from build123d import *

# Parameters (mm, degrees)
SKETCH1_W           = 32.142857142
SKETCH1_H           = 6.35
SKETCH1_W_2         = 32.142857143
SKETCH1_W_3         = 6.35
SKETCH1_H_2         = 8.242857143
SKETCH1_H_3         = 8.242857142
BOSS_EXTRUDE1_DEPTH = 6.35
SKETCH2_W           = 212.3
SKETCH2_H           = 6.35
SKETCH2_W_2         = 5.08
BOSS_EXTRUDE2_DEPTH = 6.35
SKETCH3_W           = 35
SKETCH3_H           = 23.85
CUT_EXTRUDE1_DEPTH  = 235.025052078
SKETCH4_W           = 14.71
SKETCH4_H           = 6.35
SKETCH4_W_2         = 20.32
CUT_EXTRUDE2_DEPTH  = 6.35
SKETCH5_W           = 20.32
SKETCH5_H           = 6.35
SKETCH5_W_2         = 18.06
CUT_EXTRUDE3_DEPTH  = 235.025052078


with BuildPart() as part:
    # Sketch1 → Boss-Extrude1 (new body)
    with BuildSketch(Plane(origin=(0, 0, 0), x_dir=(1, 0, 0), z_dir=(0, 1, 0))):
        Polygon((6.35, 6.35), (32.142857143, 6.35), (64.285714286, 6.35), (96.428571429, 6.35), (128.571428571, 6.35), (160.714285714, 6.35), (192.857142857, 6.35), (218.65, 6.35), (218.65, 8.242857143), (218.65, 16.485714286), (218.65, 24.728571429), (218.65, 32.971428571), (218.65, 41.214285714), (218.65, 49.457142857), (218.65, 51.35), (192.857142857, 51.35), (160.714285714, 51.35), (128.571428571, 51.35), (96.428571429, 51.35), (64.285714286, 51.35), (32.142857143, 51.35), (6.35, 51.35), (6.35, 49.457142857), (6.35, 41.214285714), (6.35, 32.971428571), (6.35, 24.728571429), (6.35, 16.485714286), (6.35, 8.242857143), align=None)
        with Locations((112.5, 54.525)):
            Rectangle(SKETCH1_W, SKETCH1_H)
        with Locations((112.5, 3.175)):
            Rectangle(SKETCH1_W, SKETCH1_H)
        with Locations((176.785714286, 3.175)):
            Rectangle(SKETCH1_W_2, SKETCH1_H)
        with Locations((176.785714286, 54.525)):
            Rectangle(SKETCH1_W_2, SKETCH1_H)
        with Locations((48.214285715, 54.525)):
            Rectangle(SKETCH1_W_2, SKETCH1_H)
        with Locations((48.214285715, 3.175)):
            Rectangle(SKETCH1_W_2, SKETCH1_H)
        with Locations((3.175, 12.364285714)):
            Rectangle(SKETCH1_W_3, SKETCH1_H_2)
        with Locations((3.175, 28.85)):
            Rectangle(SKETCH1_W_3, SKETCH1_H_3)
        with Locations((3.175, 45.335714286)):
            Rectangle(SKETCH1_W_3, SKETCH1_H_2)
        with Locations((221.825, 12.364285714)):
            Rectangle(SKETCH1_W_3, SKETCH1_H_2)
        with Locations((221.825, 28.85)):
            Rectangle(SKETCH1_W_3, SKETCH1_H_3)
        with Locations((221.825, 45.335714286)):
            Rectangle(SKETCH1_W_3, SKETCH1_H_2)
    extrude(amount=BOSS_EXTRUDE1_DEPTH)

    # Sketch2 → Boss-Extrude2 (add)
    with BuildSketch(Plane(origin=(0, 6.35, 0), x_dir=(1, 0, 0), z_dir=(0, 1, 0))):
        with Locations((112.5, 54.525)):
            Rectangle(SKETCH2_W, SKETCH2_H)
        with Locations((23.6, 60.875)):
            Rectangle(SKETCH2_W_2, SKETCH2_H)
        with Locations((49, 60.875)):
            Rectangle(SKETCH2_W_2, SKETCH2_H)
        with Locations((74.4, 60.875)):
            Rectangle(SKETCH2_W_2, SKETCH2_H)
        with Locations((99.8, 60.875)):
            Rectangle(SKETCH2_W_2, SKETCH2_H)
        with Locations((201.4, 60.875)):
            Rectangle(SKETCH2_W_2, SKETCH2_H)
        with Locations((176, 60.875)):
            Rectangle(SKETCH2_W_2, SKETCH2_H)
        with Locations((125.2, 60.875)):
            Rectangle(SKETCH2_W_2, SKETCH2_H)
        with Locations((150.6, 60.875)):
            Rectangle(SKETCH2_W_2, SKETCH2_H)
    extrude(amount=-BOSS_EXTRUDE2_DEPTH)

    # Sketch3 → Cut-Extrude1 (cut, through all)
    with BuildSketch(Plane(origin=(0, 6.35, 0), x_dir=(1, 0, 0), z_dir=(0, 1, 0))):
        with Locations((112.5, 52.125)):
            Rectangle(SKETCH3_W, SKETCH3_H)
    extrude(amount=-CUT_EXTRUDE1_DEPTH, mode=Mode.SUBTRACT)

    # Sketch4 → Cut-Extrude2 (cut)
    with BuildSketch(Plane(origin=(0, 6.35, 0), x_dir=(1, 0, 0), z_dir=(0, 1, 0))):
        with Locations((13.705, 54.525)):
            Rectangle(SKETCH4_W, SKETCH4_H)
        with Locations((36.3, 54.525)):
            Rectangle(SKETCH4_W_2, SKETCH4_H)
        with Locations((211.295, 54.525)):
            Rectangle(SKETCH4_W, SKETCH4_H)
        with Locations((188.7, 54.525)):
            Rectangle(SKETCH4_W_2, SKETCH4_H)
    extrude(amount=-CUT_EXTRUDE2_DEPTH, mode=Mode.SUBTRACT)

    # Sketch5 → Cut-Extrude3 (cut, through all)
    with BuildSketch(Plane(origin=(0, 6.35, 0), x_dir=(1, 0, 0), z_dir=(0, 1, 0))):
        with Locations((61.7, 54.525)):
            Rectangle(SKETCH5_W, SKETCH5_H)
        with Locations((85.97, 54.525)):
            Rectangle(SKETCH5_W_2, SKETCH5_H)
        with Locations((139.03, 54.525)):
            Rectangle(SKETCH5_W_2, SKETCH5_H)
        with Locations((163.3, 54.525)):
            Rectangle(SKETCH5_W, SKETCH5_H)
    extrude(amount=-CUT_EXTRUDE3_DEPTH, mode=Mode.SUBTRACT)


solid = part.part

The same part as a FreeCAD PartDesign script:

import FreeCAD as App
import Part
import Sketcher
from FreeCAD import Vector
Q = App.Units.Quantity

doc = App.newDocument("Part")
body = doc.addObject("PartDesign::Body", "Body")

sketch1 = doc.addObject("Sketcher::SketchObject", "Sketch")
body.addObject(sketch1)
sketch1.AttachmentSupport = (doc.XZ_Plane, [""])
sketch1.MapMode = "FlatFace"
sketch1.addGeometry([
    Part.LineSegment(Vector(6.3, -6.3, 0), Vector(32.1, -6.3, 0)),
    Part.LineSegment(Vector(32.1, -6.3, 0), Vector(32.1, 0, 0)),
    Part.LineSegment(Vector(32.1, 0, 0), Vector(64.3, 0, 0)),
    Part.LineSegment(Vector(64.3, 0, 0), Vector(64.3, -6.3, 0)),
    Part.LineSegment(Vector(64.3, -6.3, 0), Vector(96.4, -6.3, 0)),
    Part.LineSegment(Vector(96.4, -6.3, 0), Vector(96.4, 0, 0)),
    Part.LineSegment(Vector(96.4, 0, 0), Vector(128.6, 0, 0)),
    Part.LineSegment(Vector(128.6, 0, 0), Vector(128.6, -6.3, 0)),
    Part.LineSegment(Vector(128.6, -6.3, 0), Vector(160.7, -6.3, 0)),
    Part.LineSegment(Vector(160.7, -6.3, 0), Vector(160.7, 0, 0)),
    Part.LineSegment(Vector(160.7, 0, 0), Vector(192.9, 0, 0)),
    Part.LineSegment(Vector(192.9, 0, 0), Vector(192.9, -6.3, 0)),
    Part.LineSegment(Vector(192.9, -6.3, 0), Vector(218.7, -6.3, 0)),
    Part.LineSegment(Vector(218.7, -6.3, 0), Vector(218.7, -8.2, 0)),
    Part.LineSegment(Vector(218.7, -8.2, 0), Vector(225, -8.2, 0)),
    Part.LineSegment(Vector(225, -8.2, 0), Vector(225, -16.5, 0)),
    Part.LineSegment(Vector(225, -16.5, 0), Vector(218.7, -16.5, 0)),
    Part.LineSegment(Vector(218.7, -16.5, 0), Vector(218.7, -24.7, 0)),
    Part.LineSegment(Vector(218.7, -24.7, 0), Vector(225, -24.7, 0)),
    Part.LineSegment(Vector(225, -24.7, 0), Vector(225, -33, 0)),
    Part.LineSegment(Vector(225, -33, 0), Vector(218.7, -33, 0)),
    Part.LineSegment(Vector(218.7, -33, 0), Vector(218.7, -41.2, 0)),
    Part.LineSegment(Vector(218.7, -41.2, 0), Vector(225, -41.2, 0)),
    Part.LineSegment(Vector(225, -41.2, 0), Vector(225, -49.5, 0)),
    Part.LineSegment(Vector(225, -49.5, 0), Vector(218.7, -49.5, 0)),
    Part.LineSegment(Vector(218.7, -49.5, 0), Vector(218.7, -51.4, 0)),
    Part.LineSegment(Vector(218.7, -51.4, 0), Vector(192.9, -51.4, 0)),
    Part.LineSegment(Vector(192.9, -51.4, 0), Vector(192.9, -57.7, 0)),
    Part.LineSegment(Vector(192.9, -57.7, 0), Vector(160.7, -57.7, 0)),
    Part.LineSegment(Vector(160.7, -57.7, 0), Vector(160.7, -51.4, 0)),
    Part.LineSegment(Vector(160.7, -51.4, 0), Vector(128.6, -51.4, 0)),
    Part.LineSegment(Vector(128.6, -51.4, 0), Vector(128.6, -57.7, 0)),
    Part.LineSegment(Vector(128.6, -57.7, 0), Vector(96.4, -57.7, 0)),
    Part.LineSegment(Vector(96.4, -57.7, 0), Vector(96.4, -51.4, 0)),
    Part.LineSegment(Vector(96.4, -51.4, 0), Vector(64.3, -51.4, 0)),
    Part.LineSegment(Vector(64.3, -51.4, 0), Vector(64.3, -57.7, 0)),
    Part.LineSegment(Vector(64.3, -57.7, 0), Vector(32.1, -57.7, 0)),
    Part.LineSegment(Vector(32.1, -57.7, 0), Vector(32.1, -51.4, 0)),
    Part.LineSegment(Vector(32.1, -51.4, 0), Vector(6.3, -51.4, 0)),
    Part.LineSegment(Vector(6.3, -51.4, 0), Vector(6.3, -49.5, 0)),
    Part.LineSegment(Vector(6.3, -49.5, 0), Vector(0, -49.5, 0)),
    Part.LineSegment(Vector(0, -49.5, 0), Vector(0, -41.2, 0)),
    Part.LineSegment(Vector(0, -41.2, 0), Vector(6.3, -41.2, 0)),
    Part.LineSegment(Vector(6.3, -41.2, 0), Vector(6.3, -33, 0)),
    Part.LineSegment(Vector(6.3, -33, 0), Vector(0, -33, 0)),
    Part.LineSegment(Vector(0, -33, 0), Vector(0, -24.7, 0)),
    Part.LineSegment(Vector(0, -24.7, 0), Vector(6.3, -24.7, 0)),
    Part.LineSegment(Vector(6.3, -24.7, 0), Vector(6.3, -16.5, 0)),
    Part.LineSegment(Vector(6.3, -16.5, 0), Vector(0, -16.5, 0)),
    Part.LineSegment(Vector(0, -16.5, 0), Vector(0, -8.2, 0)),
    Part.LineSegment(Vector(0, -8.2, 0), Vector(6.3, -8.2, 0)),
    Part.LineSegment(Vector(6.3, -8.2, 0), Vector(6.3, -6.3, 0)),
], False)
sketch1.addConstraint([
    Sketcher.Constraint("Coincident", 0, 2, 1, 1),
    Sketcher.Constraint("Coincident", 1, 2, 2, 1),
    Sketcher.Constraint("Coincident", 2, 2, 3, 1),
    Sketcher.Constraint("Coincident", 3, 2, 4, 1),
    Sketcher.Constraint("Coincident", 4, 2, 5, 1),
    Sketcher.Constraint("Coincident", 5, 2, 6, 1),
    Sketcher.Constraint("Coincident", 6, 2, 7, 1),
    Sketcher.Constraint("Coincident", 7, 2, 8, 1),
    Sketcher.Constraint("Coincident", 8, 2, 9, 1),
    Sketcher.Constraint("Coincident", 9, 2, 10, 1),
    Sketcher.Constraint("Coincident", 10, 2, 11, 1),
    Sketcher.Constraint("Coincident", 11, 2, 12, 1),
    Sketcher.Constraint("Coincident", 12, 2, 13, 1),
    Sketcher.Constraint("Coincident", 13, 2, 14, 1),
    Sketcher.Constraint("Coincident", 14, 2, 15, 1),
    Sketcher.Constraint("Coincident", 15, 2, 16, 1),
    Sketcher.Constraint("Coincident", 16, 2, 17, 1),
    Sketcher.Constraint("Coincident", 17, 2, 18, 1),
    Sketcher.Constraint("Coincident", 18, 2, 19, 1),
    Sketcher.Constraint("Coincident", 19, 2, 20, 1),
    Sketcher.Constraint("Coincident", 20, 2, 21, 1),
    Sketcher.Constraint("Coincident", 21, 2, 22, 1),
    Sketcher.Constraint("Coincident", 22, 2, 23, 1),
    Sketcher.Constraint("Coincident", 23, 2, 24, 1),
    Sketcher.Constraint("Coincident", 24, 2, 25, 1),
    Sketcher.Constraint("Coincident", 25, 2, 26, 1),
    Sketcher.Constraint("Coincident", 26, 2, 27, 1),
    Sketcher.Constraint("Coincident", 27, 2, 28, 1),
    Sketcher.Constraint("Coincident", 28, 2, 29, 1),
    Sketcher.Constraint("Coincident", 29, 2, 30, 1),
    Sketcher.Constraint("Coincident", 30, 2, 31, 1),
    Sketcher.Constraint("Coincident", 31, 2, 32, 1),
    Sketcher.Constraint("Coincident", 32, 2, 33, 1),
    Sketcher.Constraint("Coincident", 33, 2, 34, 1),
    Sketcher.Constraint("Coincident", 34, 2, 35, 1),
    Sketcher.Constraint("Coincident", 35, 2, 36, 1),
    Sketcher.Constraint("Coincident", 36, 2, 37, 1),
    Sketcher.Constraint("Coincident", 37, 2, 38, 1),
    Sketcher.Constraint("Coincident", 38, 2, 39, 1),
    Sketcher.Constraint("Coincident", 39, 2, 40, 1),
    Sketcher.Constraint("Coincident", 40, 2, 41, 1),
    Sketcher.Constraint("Coincident", 41, 2, 42, 1),
    Sketcher.Constraint("Coincident", 42, 2, 43, 1),
    Sketcher.Constraint("Coincident", 43, 2, 44, 1),
    Sketcher.Constraint("Coincident", 44, 2, 45, 1),
    Sketcher.Constraint("Coincident", 45, 2, 46, 1),
    Sketcher.Constraint("Coincident", 46, 2, 47, 1),
    Sketcher.Constraint("Coincident", 47, 2, 48, 1),
    Sketcher.Constraint("Coincident", 48, 2, 49, 1),
    Sketcher.Constraint("Coincident", 49, 2, 50, 1),
    Sketcher.Constraint("Coincident", 50, 2, 51, 1),
    Sketcher.Constraint("Coincident", 51, 2, 0, 1),
    Sketcher.Constraint("Horizontal", 0),
    Sketcher.Constraint("Vertical", 1),
    Sketcher.Constraint("Horizontal", 2),
    Sketcher.Constraint("Vertical", 3),
    Sketcher.Constraint("Horizontal", 4),
    Sketcher.Constraint("Vertical", 5),
    Sketcher.Constraint("Horizontal", 6),
    Sketcher.Constraint("Vertical", 7),
    Sketcher.Constraint("Horizontal", 8),
    Sketcher.Constraint("Vertical", 9),
    Sketcher.Constraint("Horizontal", 10),
    Sketcher.Constraint("Vertical", 11),
    Sketcher.Constraint("Horizontal", 12),
    Sketcher.Constraint("Vertical", 13),
    Sketcher.Constraint("Horizontal", 14),
    Sketcher.Constraint("Vertical", 15),
    Sketcher.Constraint("Horizontal", 16),
    Sketcher.Constraint("Vertical", 17),
    Sketcher.Constraint("Horizontal", 18),
    Sketcher.Constraint("Vertical", 19),
    Sketcher.Constraint("Horizontal", 20),
    Sketcher.Constraint("Vertical", 21),
    Sketcher.Constraint("Horizontal", 22),
    Sketcher.Constraint("Vertical", 23),
    Sketcher.Constraint("Horizontal", 24),
    Sketcher.Constraint("Vertical", 25),
    Sketcher.Constraint("Horizontal", 26),
    Sketcher.Constraint("Vertical", 27),
    Sketcher.Constraint("Horizontal", 28),
    Sketcher.Constraint("Vertical", 29),
    Sketcher.Constraint("Horizontal", 30),
    Sketcher.Constraint("Vertical", 31),
    Sketcher.Constraint("Horizontal", 32),
    Sketcher.Constraint("Vertical", 33),
    Sketcher.Constraint("Horizontal", 34),
    Sketcher.Constraint("Vertical", 35),
    Sketcher.Constraint("Horizontal", 36),
    Sketcher.Constraint("Vertical", 37),
    Sketcher.Constraint("Horizontal", 38),
    Sketcher.Constraint("Vertical", 39),
    Sketcher.Constraint("Horizontal", 40),
    Sketcher.Constraint("Vertical", 41),
    Sketcher.Constraint("Horizontal", 42),
    Sketcher.Constraint("Vertical", 43),
    Sketcher.Constraint("Horizontal", 44),
    Sketcher.Constraint("Vertical", 45),
    Sketcher.Constraint("Horizontal", 46),
    Sketcher.Constraint("Vertical", 47),
    Sketcher.Constraint("Horizontal", 48),
    Sketcher.Constraint("Vertical", 49),
    Sketcher.Constraint("Horizontal", 50),
    Sketcher.Constraint("Vertical", 51),
    Sketcher.Constraint("PointOnObject", 1, 2, -1),
    Sketcher.Constraint("PointOnObject", 5, 2, -1),
    Sketcher.Constraint("PointOnObject", 9, 2, -1),
    Sketcher.Constraint("PointOnObject", 40, 2, -2),
    Sketcher.Constraint("PointOnObject", 44, 2, -2),
    Sketcher.Constraint("PointOnObject", 48, 2, -2),
    Sketcher.Constraint("Horizontal", 0, 2, 3, 2),
    Sketcher.Constraint("Horizontal", 4, 2, 7, 2),
    Sketcher.Constraint("Horizontal", 8, 2, 11, 2),
    Sketcher.Constraint("Horizontal", 26, 2, 29, 2),
    Sketcher.Constraint("Horizontal", 28, 2, 31, 2),
    Sketcher.Constraint("Horizontal", 30, 2, 33, 2),
    Sketcher.Constraint("Horizontal", 32, 2, 35, 2),
    Sketcher.Constraint("Horizontal", 34, 2, 37, 2),
    Sketcher.Constraint("Horizontal", 24, 2, 39, 2),
    Sketcher.Constraint("Horizontal", 22, 2, 41, 2),
    Sketcher.Constraint("Horizontal", 20, 2, 43, 2),
    Sketcher.Constraint("Horizontal", 18, 2, 45, 2),
    Sketcher.Constraint("Horizontal", 16, 2, 47, 2),
    Sketcher.Constraint("Horizontal", 14, 2, 49, 2),
    Sketcher.Constraint("Vertical", 13, 2, 16, 2),
    Sketcher.Constraint("Vertical", 15, 2, 18, 2),
    Sketcher.Constraint("Vertical", 17, 2, 20, 2),
    Sketcher.Constraint("Vertical", 19, 2, 22, 2),
    Sketcher.Constraint("Vertical", 21, 2, 24, 2),
    Sketcher.Constraint("Vertical", 11, 2, 26, 2),
    Sketcher.Constraint("Vertical", 9, 2, 28, 2),
    Sketcher.Constraint("Vertical", 7, 2, 30, 2),
    Sketcher.Constraint("Vertical", 5, 2, 32, 2),
    Sketcher.Constraint("Vertical", 3, 2, 34, 2),
    Sketcher.Constraint("Vertical", 1, 2, 36, 2),
    Sketcher.Constraint("Vertical", 39, 2, 42, 2),
    Sketcher.Constraint("Vertical", 43, 2, 46, 2),
    Sketcher.Constraint("Vertical", 47, 2, 50, 2),
    Sketcher.Constraint("Equal", 2, 4),
    Sketcher.Constraint("Equal", 4, 6),
    Sketcher.Constraint("Equal", 6, 8),
    Sketcher.Constraint("Equal", 8, 10),
    Sketcher.Constraint("Equal", 0, 12),
    Sketcher.Constraint("Equal", 24, 40),
    Sketcher.Constraint("Equal", 50, 1),
    Sketcher.Constraint("Equal", 15, 17),
    Sketcher.Constraint("Equal", 17, 19),
    Sketcher.Constraint("Equal", 19, 21),
    Sketcher.Constraint("Equal", 21, 23),
    Sketcher.Constraint("Equal", 13, 25),
    Sketcher.Constraint("Equal", 11, 27),
    Sketcher.Constraint("DistanceX", 14, 1, 14, 2, Q("0.25 in")),
    Sketcher.Constraint("DistanceX", -1, 1, 12, 2, Q("218.65 mm")),
    Sketcher.Constraint("DistanceY", 25, 2, -1, 1, Q("51.35 mm")),
    Sketcher.Constraint("DistanceX", 0, 1, 0, 2, Q("25.792857 mm")),
    Sketcher.Constraint("DistanceY", 13, 2, 13, 1, Q("1.892857 mm")),
])
pad1 = doc.addObject("PartDesign::Pad", "Pad")
body.addObject(pad1)
pad1.Profile = sketch1
pad1.Length = Q("0.25 in")
pad1.Reversed = True

sketch2 = doc.addObject("Sketcher::SketchObject", "Sketch001")
body.addObject(sketch2)
sketch2.AttachmentSupport = (doc.XZ_Plane, [""])
sketch2.MapMode = "FlatFace"
sketch2.AttachmentOffset = App.Placement(Vector(0, 0, -0.25 * 25.4), App.Rotation())
sketch2.addGeometry([
    Part.LineSegment(Vector(6, -58, 0), Vector(6, -51, 0)),
    Part.LineSegment(Vector(6, -51, 0), Vector(219, -51, 0)),
    Part.LineSegment(Vector(219, -51, 0), Vector(219, -58, 0)),
    Part.LineSegment(Vector(219, -58, 0), Vector(204, -58, 0)),
    Part.LineSegment(Vector(204, -58, 0), Vector(204, -64, 0)),
    Part.LineSegment(Vector(204, -64, 0), Vector(199, -64, 0)),
    Part.LineSegment(Vector(199, -64, 0), Vector(199, -58, 0)),
    Part.LineSegment(Vector(199, -58, 0), Vector(179, -58, 0)),
    Part.LineSegment(Vector(179, -58, 0), Vector(179, -64, 0)),
    Part.LineSegment(Vector(179, -64, 0), Vector(173, -64, 0)),
    Part.LineSegment(Vector(173, -64, 0), Vector(173, -58, 0)),
    Part.LineSegment(Vector(173, -58, 0), Vector(153, -58, 0)),
    Part.LineSegment(Vector(153, -58, 0), Vector(153, -64, 0)),
    Part.LineSegment(Vector(153, -64, 0), Vector(148, -64, 0)),
    Part.LineSegment(Vector(148, -64, 0), Vector(148, -58, 0)),
    Part.LineSegment(Vector(148, -58, 0), Vector(128, -58, 0)),
    Part.LineSegment(Vector(128, -58, 0), Vector(128, -64, 0)),
    Part.LineSegment(Vector(128, -64, 0), Vector(123, -64, 0)),
    Part.LineSegment(Vector(123, -64, 0), Vector(123, -58, 0)),
    Part.LineSegment(Vector(123, -58, 0), Vector(102, -58, 0)),
    Part.LineSegment(Vector(102, -58, 0), Vector(102, -64, 0)),
    Part.LineSegment(Vector(102, -64, 0), Vector(97, -64, 0)),
    Part.LineSegment(Vector(97, -64, 0), Vector(97, -58, 0)),
    Part.LineSegment(Vector(97, -58, 0), Vector(77, -58, 0)),
    Part.LineSegment(Vector(77, -58, 0), Vector(77, -64, 0)),
    Part.LineSegment(Vector(77, -64, 0), Vector(72, -64, 0)),
    Part.LineSegment(Vector(72, -64, 0), Vector(72, -58, 0)),
    Part.LineSegment(Vector(72, -58, 0), Vector(52, -58, 0)),
    Part.LineSegment(Vector(52, -58, 0), Vector(52, -64, 0)),
    Part.LineSegment(Vector(52, -64, 0), Vector(46, -64, 0)),
    Part.LineSegment(Vector(46, -64, 0), Vector(46, -58, 0)),
    Part.LineSegment(Vector(46, -58, 0), Vector(26, -58, 0)),
    Part.LineSegment(Vector(26, -58, 0), Vector(26, -64, 0)),
    Part.LineSegment(Vector(26, -64, 0), Vector(21, -64, 0)),
    Part.LineSegment(Vector(21, -64, 0), Vector(21, -58, 0)),
    Part.LineSegment(Vector(21, -58, 0), Vector(6, -58, 0)),
], False)
sketch2.addConstraint([
    Sketcher.Constraint("Coincident", 0, 2, 1, 1),
    Sketcher.Constraint("Coincident", 1, 2, 2, 1),
    Sketcher.Constraint("Coincident", 2, 2, 3, 1),
    Sketcher.Constraint("Coincident", 3, 2, 4, 1),
    Sketcher.Constraint("Coincident", 4, 2, 5, 1),
    Sketcher.Constraint("Coincident", 5, 2, 6, 1),
    Sketcher.Constraint("Coincident", 6, 2, 7, 1),
    Sketcher.Constraint("Coincident", 7, 2, 8, 1),
    Sketcher.Constraint("Coincident", 8, 2, 9, 1),
    Sketcher.Constraint("Coincident", 9, 2, 10, 1),
    Sketcher.Constraint("Coincident", 10, 2, 11, 1),
    Sketcher.Constraint("Coincident", 11, 2, 12, 1),
    Sketcher.Constraint("Coincident", 12, 2, 13, 1),
    Sketcher.Constraint("Coincident", 13, 2, 14, 1),
    Sketcher.Constraint("Coincident", 14, 2, 15, 1),
    Sketcher.Constraint("Coincident", 15, 2, 16, 1),
    Sketcher.Constraint("Coincident", 16, 2, 17, 1),
    Sketcher.Constraint("Coincident", 17, 2, 18, 1),
    Sketcher.Constraint("Coincident", 18, 2, 19, 1),
    Sketcher.Constraint("Coincident", 19, 2, 20, 1),
    Sketcher.Constraint("Coincident", 20, 2, 21, 1),
    Sketcher.Constraint("Coincident", 21, 2, 22, 1),
    Sketcher.Constraint("Coincident", 22, 2, 23, 1),
    Sketcher.Constraint("Coincident", 23, 2, 24, 1),
    Sketcher.Constraint("Coincident", 24, 2, 25, 1),
    Sketcher.Constraint("Coincident", 25, 2, 26, 1),
    Sketcher.Constraint("Coincident", 26, 2, 27, 1),
    Sketcher.Constraint("Coincident", 27, 2, 28, 1),
    Sketcher.Constraint("Coincident", 28, 2, 29, 1),
    Sketcher.Constraint("Coincident", 29, 2, 30, 1),
    Sketcher.Constraint("Coincident", 30, 2, 31, 1),
    Sketcher.Constraint("Coincident", 31, 2, 32, 1),
    Sketcher.Constraint("Coincident", 32, 2, 33, 1),
    Sketcher.Constraint("Coincident", 33, 2, 34, 1),
    Sketcher.Constraint("Coincident", 34, 2, 35, 1),
    Sketcher.Constraint("Coincident", 35, 2, 0, 1),
    Sketcher.Constraint("Vertical", 0),
    Sketcher.Constraint("Horizontal", 1),
    Sketcher.Constraint("Vertical", 2),
    Sketcher.Constraint("Horizontal", 3),
    Sketcher.Constraint("Vertical", 4),
    Sketcher.Constraint("Horizontal", 5),
    Sketcher.Constraint("Vertical", 6),
    Sketcher.Constraint("Horizontal", 7),
    Sketcher.Constraint("Vertical", 8),
    Sketcher.Constraint("Horizontal", 9),
    Sketcher.Constraint("Vertical", 10),
    Sketcher.Constraint("Horizontal", 11),
    Sketcher.Constraint("Vertical", 12),
    Sketcher.Constraint("Horizontal", 13),
    Sketcher.Constraint("Vertical", 14),
    Sketcher.Constraint("Horizontal", 15),
    Sketcher.Constraint("Vertical", 16),
    Sketcher.Constraint("Horizontal", 17),
    Sketcher.Constraint("Vertical", 18),
    Sketcher.Constraint("Horizontal", 19),
    Sketcher.Constraint("Vertical", 20),
    Sketcher.Constraint("Horizontal", 21),
    Sketcher.Constraint("Vertical", 22),
    Sketcher.Constraint("Horizontal", 23),
    Sketcher.Constraint("Vertical", 24),
    Sketcher.Constraint("Horizontal", 25),
    Sketcher.Constraint("Vertical", 26),
    Sketcher.Constraint("Horizontal", 27),
    Sketcher.Constraint("Vertical", 28),
    Sketcher.Constraint("Horizontal", 29),
    Sketcher.Constraint("Vertical", 30),
    Sketcher.Constraint("Horizontal", 31),
    Sketcher.Constraint("Vertical", 32),
    Sketcher.Constraint("Horizontal", 33),
    Sketcher.Constraint("Vertical", 34),
    Sketcher.Constraint("Horizontal", 35),
    Sketcher.Constraint("Horizontal", 3, 2, 6, 2),
    Sketcher.Constraint("Horizontal", 5, 2, 8, 2),
    Sketcher.Constraint("Horizontal", 7, 2, 10, 2),
    Sketcher.Constraint("Horizontal", 9, 2, 12, 2),
    Sketcher.Constraint("Horizontal", 11, 2, 14, 2),
    Sketcher.Constraint("Horizontal", 13, 2, 16, 2),
    Sketcher.Constraint("Horizontal", 15, 2, 18, 2),
    Sketcher.Constraint("Horizontal", 17, 2, 20, 2),
    Sketcher.Constraint("Horizontal", 19, 2, 22, 2),
    Sketcher.Constraint("Horizontal", 21, 2, 24, 2),
    Sketcher.Constraint("Horizontal", 23, 2, 26, 2),
    Sketcher.Constraint("Horizontal", 25, 2, 28, 2),
    Sketcher.Constraint("Horizontal", 27, 2, 30, 2),
    Sketcher.Constraint("Horizontal", 29, 2, 32, 2),
    Sketcher.Constraint("Horizontal", 31, 2, 34, 2),
    Sketcher.Constraint("Equal", 5, 9),
    Sketcher.Constraint("Equal", 7, 11),
    Sketcher.Constraint("Equal", 9, 13),
    Sketcher.Constraint("Equal", 11, 15),
    Sketcher.Constraint("Equal", 13, 17),
    Sketcher.Constraint("Equal", 15, 19),
    Sketcher.Constraint("Equal", 17, 21),
    Sketcher.Constraint("Equal", 19, 23),
    Sketcher.Constraint("Equal", 21, 25),
    Sketcher.Constraint("Equal", 23, 27),
    Sketcher.Constraint("Equal", 25, 29),
    Sketcher.Constraint("Equal", 27, 31),
    Sketcher.Constraint("Equal", 29, 33),
    Sketcher.Constraint("Equal", 3, 35),
    Sketcher.Constraint("Equal", 2, 4),
    Sketcher.Constraint("DistanceX", 5, 2, 5, 1, Q("0.2 in")),
    Sketcher.Constraint("DistanceX", 7, 2, 7, 1, Q("0.8 in")),
    Sketcher.Constraint("DistanceY", 0, 1, 0, 2, Q("0.25 in")),
    Sketcher.Constraint("DistanceX", -1, 1, 0, 2, Q("0.25 in")),
    Sketcher.Constraint("DistanceX", 1, 1, 1, 2, Q("212.3 mm")),
    Sketcher.Constraint("DistanceY", 0, 2, -1, 1, Q("51.35 mm")),
])
pad2 = doc.addObject("PartDesign::Pad", "Pad001")
body.addObject(pad2)
pad2.Profile = sketch2
pad2.Length = Q("0.25 in")

sketch3 = doc.addObject("Sketcher::SketchObject", "Sketch002")
body.addObject(sketch3)
sketch3.AttachmentSupport = (doc.XZ_Plane, [""])
sketch3.MapMode = "FlatFace"
sketch3.AttachmentOffset = App.Placement(Vector(0, 0, -0.25 * 25.4), App.Rotation())
sketch3.addGeometry([
    Part.LineSegment(Vector(95, -64, 0), Vector(95, -40, 0)),
    Part.LineSegment(Vector(95, -40, 0), Vector(130, -40, 0)),
    Part.LineSegment(Vector(130, -40, 0), Vector(130, -64, 0)),
    Part.LineSegment(Vector(130, -64, 0), Vector(95, -64, 0)),
], False)
sketch3.addConstraint([
    Sketcher.Constraint("Coincident", 0, 2, 1, 1),
    Sketcher.Constraint("Coincident", 1, 2, 2, 1),
    Sketcher.Constraint("Coincident", 2, 2, 3, 1),
    Sketcher.Constraint("Coincident", 3, 2, 0, 1),
    Sketcher.Constraint("Vertical", 0),
    Sketcher.Constraint("Horizontal", 1),
    Sketcher.Constraint("Vertical", 2),
    Sketcher.Constraint("Horizontal", 3),
    Sketcher.Constraint("DistanceX", 1, 1, 1, 2, Q("35 mm")),
    Sketcher.Constraint("DistanceY", 0, 1, 0, 2, Q("23.85 mm")),
    Sketcher.Constraint("DistanceX", -1, 1, 0, 2, Q("95 mm")),
    Sketcher.Constraint("DistanceY", 0, 2, -1, 1, Q("40.2 mm")),
])
pocket1 = doc.addObject("PartDesign::Pocket", "Pocket")
body.addObject(pocket1)
pocket1.Profile = sketch3
pocket1.Type = "ThroughAll"
pocket1.Reversed = True

sketch4 = doc.addObject("Sketcher::SketchObject", "Sketch003")
body.addObject(sketch4)
sketch4.AttachmentSupport = (doc.XZ_Plane, [""])
sketch4.MapMode = "FlatFace"
sketch4.AttachmentOffset = App.Placement(Vector(0, 0, -0.25 * 25.4), App.Rotation())
sketch4.addGeometry([
    Part.LineSegment(Vector(6, -58, 0), Vector(6, -51, 0)),
    Part.LineSegment(Vector(6, -51, 0), Vector(21, -51, 0)),
    Part.LineSegment(Vector(21, -51, 0), Vector(21, -58, 0)),
    Part.LineSegment(Vector(21, -58, 0), Vector(6, -58, 0)),
    Part.LineSegment(Vector(26, -58, 0), Vector(26, -51, 0)),
    Part.LineSegment(Vector(26, -51, 0), Vector(46, -51, 0)),
    Part.LineSegment(Vector(46, -51, 0), Vector(46, -58, 0)),
    Part.LineSegment(Vector(46, -58, 0), Vector(26, -58, 0)),
    Part.LineSegment(Vector(204, -58, 0), Vector(204, -51, 0)),
    Part.LineSegment(Vector(204, -51, 0), Vector(219, -51, 0)),
    Part.LineSegment(Vector(219, -51, 0), Vector(219, -58, 0)),
    Part.LineSegment(Vector(219, -58, 0), Vector(204, -58, 0)),
    Part.LineSegment(Vector(179, -58, 0), Vector(179, -51, 0)),
    Part.LineSegment(Vector(179, -51, 0), Vector(199, -51, 0)),
    Part.LineSegment(Vector(199, -51, 0), Vector(199, -58, 0)),
    Part.LineSegment(Vector(199, -58, 0), Vector(179, -58, 0)),
], False)
sketch4.addConstraint([
    Sketcher.Constraint("Coincident", 0, 2, 1, 1),
    Sketcher.Constraint("Coincident", 1, 2, 2, 1),
    Sketcher.Constraint("Coincident", 2, 2, 3, 1),
    Sketcher.Constraint("Coincident", 3, 2, 0, 1),
    Sketcher.Constraint("Coincident", 4, 2, 5, 1),
    Sketcher.Constraint("Coincident", 5, 2, 6, 1),
    Sketcher.Constraint("Coincident", 6, 2, 7, 1),
    Sketcher.Constraint("Coincident", 7, 2, 4, 1),
    Sketcher.Constraint("Coincident", 8, 2, 9, 1),
    Sketcher.Constraint("Coincident", 9, 2, 10, 1),
    Sketcher.Constraint("Coincident", 10, 2, 11, 1),
    Sketcher.Constraint("Coincident", 11, 2, 8, 1),
    Sketcher.Constraint("Coincident", 12, 2, 13, 1),
    Sketcher.Constraint("Coincident", 13, 2, 14, 1),
    Sketcher.Constraint("Coincident", 14, 2, 15, 1),
    Sketcher.Constraint("Coincident", 15, 2, 12, 1),
    Sketcher.Constraint("Vertical", 0),
    Sketcher.Constraint("Horizontal", 1),
    Sketcher.Constraint("Vertical", 2),
    Sketcher.Constraint("Horizontal", 3),
    Sketcher.Constraint("Vertical", 4),
    Sketcher.Constraint("Horizontal", 5),
    Sketcher.Constraint("Vertical", 6),
    Sketcher.Constraint("Horizontal", 7),
    Sketcher.Constraint("Vertical", 8),
    Sketcher.Constraint("Horizontal", 9),
    Sketcher.Constraint("Vertical", 10),
    Sketcher.Constraint("Horizontal", 11),
    Sketcher.Constraint("Vertical", 12),
    Sketcher.Constraint("Horizontal", 13),
    Sketcher.Constraint("Vertical", 14),
    Sketcher.Constraint("Horizontal", 15),
    Sketcher.Constraint("Horizontal", 1, 2, 4, 2),
    Sketcher.Constraint("Horizontal", 3, 2, 6, 2),
    Sketcher.Constraint("Horizontal", 5, 2, 8, 2),
    Sketcher.Constraint("Horizontal", 7, 2, 10, 2),
    Sketcher.Constraint("Horizontal", 9, 2, 12, 2),
    Sketcher.Constraint("Horizontal", 11, 2, 14, 2),
    Sketcher.Constraint("Equal", 3, 9),
    Sketcher.Constraint("Equal", 7, 13),
    Sketcher.Constraint("DistanceX", 5, 1, 5, 2, Q("0.8 in")),
    Sketcher.Constraint("DistanceX", 1, 2, 5, 2, Q("1 in")),
    Sketcher.Constraint("DistanceX", 4, 2, 8, 2, Q("7 in")),
    Sketcher.Constraint("DistanceX", 12, 2, 8, 2, Q("1 in")),
    Sketcher.Constraint("DistanceY", 0, 1, 0, 2, Q("0.25 in")),
    Sketcher.Constraint("DistanceX", -1, 1, 0, 2, Q("0.25 in")),
    Sketcher.Constraint("DistanceX", 1, 1, 1, 2, Q("14.71 mm")),
    Sketcher.Constraint("DistanceY", 0, 2, -1, 1, Q("51.35 mm")),
])
pocket2 = doc.addObject("PartDesign::Pocket", "Pocket001")
body.addObject(pocket2)
pocket2.Profile = sketch4
pocket2.Length = Q("0.25 in")
pocket2.Reversed = True

sketch5 = doc.addObject("Sketcher::SketchObject", "Sketch004")
body.addObject(sketch5)
sketch5.AttachmentSupport = (doc.XZ_Plane, [""])
sketch5.MapMode = "FlatFace"
sketch5.AttachmentOffset = App.Placement(Vector(0, 0, -0.25 * 25.4), App.Rotation())
sketch5.addGeometry([
    Part.LineSegment(Vector(52, -58, 0), Vector(52, -51, 0)),
    Part.LineSegment(Vector(52, -51, 0), Vector(72, -51, 0)),
    Part.LineSegment(Vector(72, -51, 0), Vector(72, -58, 0)),
    Part.LineSegment(Vector(72, -58, 0), Vector(52, -58, 0)),
    Part.LineSegment(Vector(77, -58, 0), Vector(77, -51, 0)),
    Part.LineSegment(Vector(77, -51, 0), Vector(95, -51, 0)),
    Part.LineSegment(Vector(95, -51, 0), Vector(95, -58, 0)),
    Part.LineSegment(Vector(95, -58, 0), Vector(77, -58, 0)),
    Part.LineSegment(Vector(130, -58, 0), Vector(130, -51, 0)),
    Part.LineSegment(Vector(130, -51, 0), Vector(148, -51, 0)),
    Part.LineSegment(Vector(148, -51, 0), Vector(148, -58, 0)),
    Part.LineSegment(Vector(148, -58, 0), Vector(130, -58, 0)),
    Part.LineSegment(Vector(153, -58, 0), Vector(153, -51, 0)),
    Part.LineSegment(Vector(153, -51, 0), Vector(173, -51, 0)),
    Part.LineSegment(Vector(173, -51, 0), Vector(173, -58, 0)),
    Part.LineSegment(Vector(173, -58, 0), Vector(153, -58, 0)),
], False)
sketch5.addConstraint([
    Sketcher.Constraint("Coincident", 0, 2, 1, 1),
    Sketcher.Constraint("Coincident", 1, 2, 2, 1),
    Sketcher.Constraint("Coincident", 2, 2, 3, 1),
    Sketcher.Constraint("Coincident", 3, 2, 0, 1),
    Sketcher.Constraint("Coincident", 4, 2, 5, 1),
    Sketcher.Constraint("Coincident", 5, 2, 6, 1),
    Sketcher.Constraint("Coincident", 6, 2, 7, 1),
    Sketcher.Constraint("Coincident", 7, 2, 4, 1),
    Sketcher.Constraint("Coincident", 8, 2, 9, 1),
    Sketcher.Constraint("Coincident", 9, 2, 10, 1),
    Sketcher.Constraint("Coincident", 10, 2, 11, 1),
    Sketcher.Constraint("Coincident", 11, 2, 8, 1),
    Sketcher.Constraint("Coincident", 12, 2, 13, 1),
    Sketcher.Constraint("Coincident", 13, 2, 14, 1),
    Sketcher.Constraint("Coincident", 14, 2, 15, 1),
    Sketcher.Constraint("Coincident", 15, 2, 12, 1),
    Sketcher.Constraint("Vertical", 0),
    Sketcher.Constraint("Horizontal", 1),
    Sketcher.Constraint("Vertical", 2),
    Sketcher.Constraint("Horizontal", 3),
    Sketcher.Constraint("Vertical", 4),
    Sketcher.Constraint("Horizontal", 5),
    Sketcher.Constraint("Vertical", 6),
    Sketcher.Constraint("Horizontal", 7),
    Sketcher.Constraint("Vertical", 8),
    Sketcher.Constraint("Horizontal", 9),
    Sketcher.Constraint("Vertical", 10),
    Sketcher.Constraint("Horizontal", 11),
    Sketcher.Constraint("Vertical", 12),
    Sketcher.Constraint("Horizontal", 13),
    Sketcher.Constraint("Vertical", 14),
    Sketcher.Constraint("Horizontal", 15),
    Sketcher.Constraint("Horizontal", 1, 2, 4, 2),
    Sketcher.Constraint("Horizontal", 3, 2, 6, 2),
    Sketcher.Constraint("Horizontal", 5, 2, 8, 2),
    Sketcher.Constraint("Horizontal", 7, 2, 10, 2),
    Sketcher.Constraint("Horizontal", 9, 2, 12, 2),
    Sketcher.Constraint("Horizontal", 11, 2, 14, 2),
    Sketcher.Constraint("Equal", 7, 9),
    Sketcher.Constraint("Equal", 3, 13),
    Sketcher.Constraint("DistanceX", 1, 1, 1, 2, Q("0.8 in")),
    Sketcher.Constraint("DistanceX", 0, 2, 4, 2, Q("1 in")),
    Sketcher.Constraint("DistanceX", 9, 2, 13, 2, Q("1 in")),
    Sketcher.Constraint("DistanceY", 0, 1, 0, 2, Q("0.25 in")),
    Sketcher.Constraint("DistanceX", 4, 2, 9, 2, Q("2.8 in")),
    Sketcher.Constraint("DistanceX", 5, 1, 5, 2, Q("18.06 mm")),
    Sketcher.Constraint("DistanceX", -1, 1, 0, 2, Q("51.54 mm")),
    Sketcher.Constraint("DistanceY", 0, 2, -1, 1, Q("51.35 mm")),
])
pocket3 = doc.addObject("PartDesign::Pocket", "Pocket002")
body.addObject(pocket3)
pocket3.Profile = sketch5
pocket3.Type = "ThroughAll"
pocket3.Reversed = True

doc.recompute()
